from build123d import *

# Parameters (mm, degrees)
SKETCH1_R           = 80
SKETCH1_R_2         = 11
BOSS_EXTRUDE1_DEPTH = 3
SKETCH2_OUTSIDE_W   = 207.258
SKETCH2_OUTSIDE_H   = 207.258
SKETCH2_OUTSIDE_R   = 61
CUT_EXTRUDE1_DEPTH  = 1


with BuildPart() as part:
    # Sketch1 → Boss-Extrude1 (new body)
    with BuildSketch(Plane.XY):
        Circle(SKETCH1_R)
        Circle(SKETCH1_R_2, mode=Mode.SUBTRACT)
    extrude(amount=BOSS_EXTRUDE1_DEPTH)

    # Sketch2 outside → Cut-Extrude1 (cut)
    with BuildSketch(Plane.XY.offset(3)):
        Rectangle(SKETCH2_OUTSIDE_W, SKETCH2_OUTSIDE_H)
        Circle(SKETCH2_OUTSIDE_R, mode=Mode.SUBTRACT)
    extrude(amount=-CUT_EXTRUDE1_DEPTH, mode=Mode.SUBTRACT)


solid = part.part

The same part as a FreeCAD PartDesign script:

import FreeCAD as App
import Part
import Sketcher
from FreeCAD import Vector
Q = App.Units.Quantity


def add_polygon(sketch, points):
    """Adds a closed chain of lines whose ends are joined by coincident constraints."""
    first, n = sketch.GeometryCount, len(points)
    for a, b in zip(points, points[1:] + points[:1]):
        sketch.addGeometry(Part.LineSegment(App.Vector(*a, 0), App.Vector(*b, 0)), False)
    for i in range(n):
        sketch.addConstraint(Sketcher.Constraint("Coincident", first + i, 2, first + (i + 1) % n, 1))

doc = App.newDocument("Part")
params = doc.addObject("Spreadsheet::Sheet", "Params")
for row, (alias, value) in enumerate([
    ("sketch1_diameter", "160 mm"),
    ("sketch1_diameter2", "22 mm"),
    ("pad1_length", "3 mm"),
    ("sketch2_diameter", "122 mm"),
    ("pocket1_length", "1 mm"),
], start=1):
    params.set(f"A{row}", alias)
    params.set(f"B{row}", "=" + value)
    params.setAlias(f"B{row}", alias)

body = doc.addObject("PartDesign::Body", "Body")

# Sketch on XY plane
sketch1 = body.newObject("Sketcher::SketchObject", "Sketch")
sketch1.AttachmentSupport = (doc.getObject("XY_Plane"), [""])
sketch1.MapMode = "FlatFace"
sketch1.addGeometry(Part.Circle(Vector(0, 0, 0), Vector(0, 0, 1), 80), False)
sketch1.addGeometry(Part.Circle(Vector(0, 0, 0), Vector(0, 0, 1), 11), False)
sketch1.addConstraint(Sketcher.Constraint("Coincident", 0, 3, -1, 1))
sketch1.addConstraint(Sketcher.Constraint("Coincident", 1, 3, -1, 1))
sketch1.addConstraint(Sketcher.Constraint("Diameter", 0, Q("160 mm")))
sketch1.addConstraint(Sketcher.Constraint("Diameter", 1, Q("22 mm")))
sketch1.setExpression("Constraints[2]", "Params.sketch1_diameter")
sketch1.setExpression("Constraints[3]", "Params.sketch1_diameter2")
pad1 = body.newObject("PartDesign::Pad", "Pad")
pad1.Profile = sketch1
pad1.setExpression("Length", "Params.pad1_length")

# Sketch on XY plane
sketch2 = body.newObject("Sketcher::SketchObject", "Sketch001")
sketch2.AttachmentSupport = (doc.getObject("XY_Plane"), [""])
sketch2.MapMode = "FlatFace"
sketch2.AttachmentOffset = App.Placement(Vector(0, 0, 3), App.Rotation())
add_polygon(sketch2, [(-103.629, 103.629), (-103.629, -103.629), (103.629, -103.629), (103.629, 103.629)])  # lines 0-3
sketch2.addGeometry(Part.Circle(Vector(0, 0, 0), Vector(0, 0, 1), 61), False)  # 4
sketch2.addConstraint(Sketcher.Constraint("Vertical", 0))
sketch2.addConstraint(Sketcher.Constraint("Horizontal", 1))
sketch2.addConstraint(Sketcher.Constraint("Vertical", 2))
sketch2.addConstraint(Sketcher.Constraint("Horizontal", 3))
sketch2.addConstraint(Sketcher.Constraint("Coincident", 4, 3, -1, 1))
sketch2.addConstraint(Sketcher.Constraint("Symmetric", 0, 2, 2, 2, -1, 1))
sketch2.addConstraint(Sketcher.Constraint("Equal", 3, 0))
sketch2.addConstraint(Sketcher.Constraint("Diameter", 4, Q("122 mm")))
sketch2.addConstraint(Sketcher.Constraint("DistanceX", 1, 1, 1, 2, Q("207.258 mm")))
sketch2.setExpression("Constraints[11]", "Params.sketch2_diameter")
pocket1 = body.newObject("PartDesign::Pocket", "Pocket")
pocket1.Profile = sketch2
pocket1.setExpression("Length", "Params.pocket1_length")

doc.recompute()
